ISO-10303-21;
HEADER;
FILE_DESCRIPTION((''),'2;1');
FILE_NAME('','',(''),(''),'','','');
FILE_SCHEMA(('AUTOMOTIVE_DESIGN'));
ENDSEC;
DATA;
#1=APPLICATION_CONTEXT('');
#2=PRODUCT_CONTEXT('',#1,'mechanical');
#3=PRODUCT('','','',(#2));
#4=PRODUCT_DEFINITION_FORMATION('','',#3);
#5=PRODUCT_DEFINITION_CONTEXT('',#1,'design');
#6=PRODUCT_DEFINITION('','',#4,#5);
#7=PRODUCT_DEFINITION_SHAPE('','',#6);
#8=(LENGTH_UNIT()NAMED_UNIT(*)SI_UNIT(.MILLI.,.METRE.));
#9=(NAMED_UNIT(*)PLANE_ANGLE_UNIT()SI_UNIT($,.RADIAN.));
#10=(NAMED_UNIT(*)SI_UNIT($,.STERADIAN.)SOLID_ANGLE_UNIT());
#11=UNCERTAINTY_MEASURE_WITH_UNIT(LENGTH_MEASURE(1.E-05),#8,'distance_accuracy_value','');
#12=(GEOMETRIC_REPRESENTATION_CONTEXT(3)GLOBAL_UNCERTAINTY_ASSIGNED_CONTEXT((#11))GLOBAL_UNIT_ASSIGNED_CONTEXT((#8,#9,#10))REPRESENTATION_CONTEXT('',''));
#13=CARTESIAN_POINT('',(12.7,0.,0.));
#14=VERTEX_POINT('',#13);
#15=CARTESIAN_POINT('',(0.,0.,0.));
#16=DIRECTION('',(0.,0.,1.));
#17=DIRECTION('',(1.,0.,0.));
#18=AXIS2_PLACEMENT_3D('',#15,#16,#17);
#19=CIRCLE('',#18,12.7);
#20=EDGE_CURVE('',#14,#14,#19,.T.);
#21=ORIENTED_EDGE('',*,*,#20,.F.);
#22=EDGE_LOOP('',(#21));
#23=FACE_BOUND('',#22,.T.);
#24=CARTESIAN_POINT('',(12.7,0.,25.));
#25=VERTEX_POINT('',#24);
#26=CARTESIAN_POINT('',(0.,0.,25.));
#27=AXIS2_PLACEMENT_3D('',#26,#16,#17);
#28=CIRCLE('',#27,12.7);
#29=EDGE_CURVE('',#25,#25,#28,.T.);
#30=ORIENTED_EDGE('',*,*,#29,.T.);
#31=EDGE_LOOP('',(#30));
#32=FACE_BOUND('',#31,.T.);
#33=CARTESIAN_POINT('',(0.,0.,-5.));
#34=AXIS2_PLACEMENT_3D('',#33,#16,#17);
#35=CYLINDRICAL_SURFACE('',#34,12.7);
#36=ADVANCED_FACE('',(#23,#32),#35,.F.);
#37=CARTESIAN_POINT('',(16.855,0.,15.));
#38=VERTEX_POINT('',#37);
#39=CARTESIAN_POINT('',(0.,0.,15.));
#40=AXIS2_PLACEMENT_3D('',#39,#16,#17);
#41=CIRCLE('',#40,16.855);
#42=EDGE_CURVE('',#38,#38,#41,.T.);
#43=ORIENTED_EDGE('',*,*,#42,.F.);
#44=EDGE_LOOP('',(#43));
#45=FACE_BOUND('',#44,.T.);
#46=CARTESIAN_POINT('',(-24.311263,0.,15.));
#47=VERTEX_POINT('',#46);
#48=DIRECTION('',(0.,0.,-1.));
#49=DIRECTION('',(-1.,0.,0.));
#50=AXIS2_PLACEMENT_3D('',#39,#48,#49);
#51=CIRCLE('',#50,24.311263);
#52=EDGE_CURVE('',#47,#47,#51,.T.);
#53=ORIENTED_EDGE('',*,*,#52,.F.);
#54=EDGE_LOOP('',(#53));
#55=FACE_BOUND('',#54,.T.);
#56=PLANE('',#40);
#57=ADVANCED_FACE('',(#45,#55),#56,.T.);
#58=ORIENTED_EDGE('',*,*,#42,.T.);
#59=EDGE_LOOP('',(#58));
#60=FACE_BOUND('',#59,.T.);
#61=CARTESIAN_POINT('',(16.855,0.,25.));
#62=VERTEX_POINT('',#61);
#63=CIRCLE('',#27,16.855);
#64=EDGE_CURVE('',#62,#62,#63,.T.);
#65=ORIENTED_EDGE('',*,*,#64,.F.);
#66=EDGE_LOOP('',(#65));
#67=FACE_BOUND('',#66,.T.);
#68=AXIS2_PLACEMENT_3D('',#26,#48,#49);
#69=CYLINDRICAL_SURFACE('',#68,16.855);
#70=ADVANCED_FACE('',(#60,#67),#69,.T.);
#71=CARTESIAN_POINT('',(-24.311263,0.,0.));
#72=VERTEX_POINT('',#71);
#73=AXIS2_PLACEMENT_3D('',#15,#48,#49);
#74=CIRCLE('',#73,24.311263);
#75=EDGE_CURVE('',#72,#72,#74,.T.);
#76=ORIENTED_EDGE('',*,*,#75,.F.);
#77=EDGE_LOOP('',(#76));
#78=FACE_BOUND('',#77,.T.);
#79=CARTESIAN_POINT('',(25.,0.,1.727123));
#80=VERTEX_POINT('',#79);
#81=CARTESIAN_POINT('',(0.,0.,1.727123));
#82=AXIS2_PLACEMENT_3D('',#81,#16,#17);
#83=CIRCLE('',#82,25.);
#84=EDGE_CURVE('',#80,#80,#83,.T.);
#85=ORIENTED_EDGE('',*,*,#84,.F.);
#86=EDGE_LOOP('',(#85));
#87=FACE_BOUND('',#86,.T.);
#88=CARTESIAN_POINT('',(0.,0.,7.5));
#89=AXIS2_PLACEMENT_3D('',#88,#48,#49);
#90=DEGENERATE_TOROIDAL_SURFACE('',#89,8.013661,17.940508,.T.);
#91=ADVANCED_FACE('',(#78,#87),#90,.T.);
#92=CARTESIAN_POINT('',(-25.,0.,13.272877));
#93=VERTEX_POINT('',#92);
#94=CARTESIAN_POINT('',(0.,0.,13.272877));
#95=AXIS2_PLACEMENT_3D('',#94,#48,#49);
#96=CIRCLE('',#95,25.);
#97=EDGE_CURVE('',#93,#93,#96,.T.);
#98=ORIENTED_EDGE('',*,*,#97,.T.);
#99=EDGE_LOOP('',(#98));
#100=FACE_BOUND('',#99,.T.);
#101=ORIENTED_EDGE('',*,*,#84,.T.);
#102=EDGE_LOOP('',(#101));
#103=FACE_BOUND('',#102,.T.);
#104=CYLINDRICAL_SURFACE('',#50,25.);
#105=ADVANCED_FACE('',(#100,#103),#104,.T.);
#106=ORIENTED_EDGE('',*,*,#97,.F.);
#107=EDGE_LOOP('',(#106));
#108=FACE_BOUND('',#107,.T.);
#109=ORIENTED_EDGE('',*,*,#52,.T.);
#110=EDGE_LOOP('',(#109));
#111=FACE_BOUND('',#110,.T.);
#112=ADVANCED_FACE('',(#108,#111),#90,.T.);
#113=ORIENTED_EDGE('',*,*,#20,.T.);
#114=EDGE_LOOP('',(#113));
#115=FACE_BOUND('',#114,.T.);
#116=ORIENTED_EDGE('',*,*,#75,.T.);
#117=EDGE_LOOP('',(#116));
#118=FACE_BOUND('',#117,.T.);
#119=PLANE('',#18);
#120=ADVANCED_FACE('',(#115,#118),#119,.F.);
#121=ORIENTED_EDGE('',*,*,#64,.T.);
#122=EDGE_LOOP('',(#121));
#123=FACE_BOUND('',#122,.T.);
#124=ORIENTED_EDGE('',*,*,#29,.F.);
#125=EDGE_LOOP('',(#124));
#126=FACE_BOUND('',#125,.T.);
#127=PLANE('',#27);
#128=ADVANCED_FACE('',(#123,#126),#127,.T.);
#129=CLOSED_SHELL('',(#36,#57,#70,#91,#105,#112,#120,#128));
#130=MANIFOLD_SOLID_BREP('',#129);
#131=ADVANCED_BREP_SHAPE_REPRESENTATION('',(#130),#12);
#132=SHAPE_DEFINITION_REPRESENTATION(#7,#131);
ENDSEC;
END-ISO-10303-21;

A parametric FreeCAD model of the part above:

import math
import FreeCAD as App
import Part
import Sketcher

V = App.Vector
Q = App.Units.Quantity

doc = App.newDocument("Part")
body = doc.addObject("PartDesign::Body", "Body")

sketch1 = body.newObject("Sketcher::SketchObject", "Sketch")
sketch1.AttachmentSupport = (doc.getObject("XY_Plane"), [""])
sketch1.MapMode = "FlatFace"
sketch1.addGeometry(Part.Circle(V(0, 0, 0), V(0, 0, 1), 25), False)
sketch1.addConstraint(Sketcher.Constraint("Coincident", 0, 3, -1, 1))
sketch1.addConstraint(Sketcher.Constraint("Diameter", 0, Q("50 mm")))
pad1 = body.newObject("PartDesign::Pad", "Pad")
pad1.Profile = sketch1
pad1.Length = 15

sketch2 = body.newObject("Sketcher::SketchObject", "Sketch001")
sketch2.AttachmentSupport = (doc.getObject("XY_Plane"), [""])
sketch2.MapMode = "FlatFace"
sketch2.AttachmentOffset = App.Placement(V(0, 0, 15), App.Rotation())
sketch2.addGeometry(Part.Circle(V(0, 0, 0), V(0, 0, 1), 17), False)
sketch2.addConstraint(Sketcher.Constraint("Coincident", 0, 3, -1, 1))
sketch2.addConstraint(Sketcher.Constraint("Diameter", 0, Q("33.71 mm")))
pad2 = body.newObject("PartDesign::Pad", "Pad001")
pad2.Profile = sketch2
pad2.Length = 10

sketch3 = body.newObject("Sketcher::SketchObject", "Sketch002")
sketch3.AttachmentSupport = (doc.getObject("XY_Plane"), [""])
sketch3.MapMode = "FlatFace"
sketch3.AttachmentOffset = App.Placement(V(0, 0, 25), App.Rotation())
sketch3.addGeometry(Part.Circle(V(0, 0, 0), V(0, 0, 1), 13), False)
sketch3.addConstraint(Sketcher.Constraint("Coincident", 0, 3, -1, 1))
sketch3.addConstraint(Sketcher.Constraint("Diameter", 0, Q("25.4 mm")))
pocket1 = body.newObject("PartDesign::Pocket", "Pocket")
pocket1.Profile = sketch3
pocket1.Length = 30

sketch4 = body.newObject("Sketcher::SketchObject", "Sketch003")
sketch4.AttachmentSupport = (doc.getObject("YZ_Plane"), [""])
sketch4.MapMode = "FlatFace"
sketch4.addGeometry(Part.LineSegment(V(26, 15, 0), V(24.3, 15, 0)), False)
sketch4.addGeometry(Part.ArcOfCircle(Part.Circle(V(8, 7.5, 0), V(0, 0, 1), 17.9), math.radians(-25), math.radians(25)), False)
sketch4.addGeometry(Part.LineSegment(V(24.3, 0, 0), V(26, 0, 0)), False)
sketch4.addGeometry(Part.LineSegment(V(26, 0, 0), V(26, 15, 0)), False)
sketch4.addConstraint(Sketcher.Constraint("Coincident", 0, 2, 1, 2))
sketch4.addConstraint(Sketcher.Constraint("Coincident", 1, 1, 2, 1))
sketch4.addConstraint(Sketcher.Constraint("Coincident", 2, 2, 3, 1))
sketch4.addConstraint(Sketcher.Constraint("Coincident", 3, 2, 0, 1))
sketch4.addConstraint(Sketcher.Constraint("Horizontal", 0))
sketch4.addConstraint(Sketcher.Constraint("Horizontal", 2))
sketch4.addConstraint(Sketcher.Constraint("Vertical", 3))
sketch4.addConstraint(Sketcher.Constraint("PointOnObject", 1, 1, -1))
sketch4.addConstraint(Sketcher.Constraint("Vertical", 0, 2, 1, 1))
sketch4.addConstraint(Sketcher.Constraint("DistanceY", 3, 1, 3, 2, Q("15 mm")))
sketch4.addConstraint(Sketcher.Constraint("DistanceX", 0, 2, 0, 1, Q("1.7 mm")))
sketch4.addConstraint(Sketcher.Constraint("Radius", 1, Q("17.940508 mm")))
sketch4.addConstraint(Sketcher.Constraint("DistanceX", -1, 1, 1, 3, Q("8.013661 mm")))
groove = body.newObject("PartDesign::Groove", "Groove")
groove.Profile = sketch4
groove.ReferenceAxis = (sketch4, ["V_Axis"])
groove.Angle = 360

doc.recompute()
